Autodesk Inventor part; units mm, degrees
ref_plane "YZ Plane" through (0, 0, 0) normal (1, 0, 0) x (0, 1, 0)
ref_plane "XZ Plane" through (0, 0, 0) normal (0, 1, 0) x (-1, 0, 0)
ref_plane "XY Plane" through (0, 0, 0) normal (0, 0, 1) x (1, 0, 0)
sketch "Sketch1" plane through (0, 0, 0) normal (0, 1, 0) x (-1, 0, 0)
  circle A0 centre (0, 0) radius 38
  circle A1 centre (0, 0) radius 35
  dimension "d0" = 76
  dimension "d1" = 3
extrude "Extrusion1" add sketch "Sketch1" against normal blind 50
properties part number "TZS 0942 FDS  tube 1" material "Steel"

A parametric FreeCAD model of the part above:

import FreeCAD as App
import Part
import Sketcher
Q = App.Units.Quantity

doc = App.newDocument("Part")
body = doc.addObject("PartDesign::Body", "Body")

# Sketch on XZ plane
sketch1 = doc.addObject("Sketcher::SketchObject", "Sketch")
body.addObject(sketch1)
sketch1.AttachmentSupport = (doc.XZ_Plane, [""])
sketch1.MapMode = "FlatFace"
sketch1.addGeometry(Part.Circle(App.Vector(0, 0, 0), App.Vector(0, 0, 1), 38), False)
sketch1.addGeometry(Part.Circle(App.Vector(0, 0, 0), App.Vector(0, 0, 1), 35), False)
sketch1.addConstraint(Sketcher.Constraint("Coincident", 0, 3, -1, 1))
sketch1.addConstraint(Sketcher.Constraint("Coincident", 1, 3, -1, 1))
sketch1.addConstraint(Sketcher.Constraint("Diameter", 0, Q("76 mm")))
sketch1.addConstraint(Sketcher.Constraint("Diameter", 1, Q("70 mm")))
pad1 = doc.addObject("PartDesign::Pad", "Pad")
body.addObject(pad1)
pad1.Profile = sketch1
pad1.Length = 50

doc.recompute()
